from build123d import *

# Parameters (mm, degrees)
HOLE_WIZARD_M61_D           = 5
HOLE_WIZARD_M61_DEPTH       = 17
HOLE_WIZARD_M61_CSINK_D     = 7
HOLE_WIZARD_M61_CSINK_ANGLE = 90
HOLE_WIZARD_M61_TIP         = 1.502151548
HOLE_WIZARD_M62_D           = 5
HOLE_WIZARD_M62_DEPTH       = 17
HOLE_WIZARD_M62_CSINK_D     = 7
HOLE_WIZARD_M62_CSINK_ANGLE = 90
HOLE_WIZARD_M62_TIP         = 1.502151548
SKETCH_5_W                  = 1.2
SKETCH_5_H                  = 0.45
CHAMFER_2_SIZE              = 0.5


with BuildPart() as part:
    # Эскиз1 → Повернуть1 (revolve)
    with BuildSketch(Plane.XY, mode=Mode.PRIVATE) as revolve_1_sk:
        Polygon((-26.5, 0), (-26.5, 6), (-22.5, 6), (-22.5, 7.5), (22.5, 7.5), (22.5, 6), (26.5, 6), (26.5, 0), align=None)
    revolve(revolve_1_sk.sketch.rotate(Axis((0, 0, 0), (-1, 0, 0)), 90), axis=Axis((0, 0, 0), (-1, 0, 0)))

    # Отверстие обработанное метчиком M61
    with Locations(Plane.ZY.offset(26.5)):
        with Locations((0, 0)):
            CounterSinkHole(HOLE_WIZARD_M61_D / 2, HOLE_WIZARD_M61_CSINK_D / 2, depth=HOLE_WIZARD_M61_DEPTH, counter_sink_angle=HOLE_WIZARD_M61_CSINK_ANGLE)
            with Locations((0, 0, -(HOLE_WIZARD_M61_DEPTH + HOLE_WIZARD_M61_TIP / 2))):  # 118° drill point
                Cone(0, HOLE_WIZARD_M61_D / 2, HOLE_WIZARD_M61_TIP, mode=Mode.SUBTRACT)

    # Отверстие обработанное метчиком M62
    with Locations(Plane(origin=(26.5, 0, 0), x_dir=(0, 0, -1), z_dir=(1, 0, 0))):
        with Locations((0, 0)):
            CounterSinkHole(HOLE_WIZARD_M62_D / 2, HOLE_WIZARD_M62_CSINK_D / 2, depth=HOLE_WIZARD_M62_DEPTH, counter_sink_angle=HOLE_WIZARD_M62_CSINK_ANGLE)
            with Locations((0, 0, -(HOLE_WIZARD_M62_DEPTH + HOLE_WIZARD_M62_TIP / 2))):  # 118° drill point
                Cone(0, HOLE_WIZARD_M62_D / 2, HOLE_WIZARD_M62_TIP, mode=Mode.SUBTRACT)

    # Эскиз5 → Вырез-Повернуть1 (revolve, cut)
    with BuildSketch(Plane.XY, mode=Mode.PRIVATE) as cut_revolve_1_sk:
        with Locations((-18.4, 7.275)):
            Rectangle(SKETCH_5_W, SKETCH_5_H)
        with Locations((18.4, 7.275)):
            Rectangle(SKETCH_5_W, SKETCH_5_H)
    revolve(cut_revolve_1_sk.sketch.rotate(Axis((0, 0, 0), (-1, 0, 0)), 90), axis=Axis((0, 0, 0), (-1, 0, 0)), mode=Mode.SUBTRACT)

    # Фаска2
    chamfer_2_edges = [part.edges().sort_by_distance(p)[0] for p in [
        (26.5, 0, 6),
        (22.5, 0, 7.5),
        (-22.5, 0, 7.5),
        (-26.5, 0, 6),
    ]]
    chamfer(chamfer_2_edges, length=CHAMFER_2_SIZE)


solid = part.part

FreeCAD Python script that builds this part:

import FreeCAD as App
import Part
import Sketcher
from FreeCAD import Vector
Q = App.Units.Quantity


def edges_at(feature, points):
    """Names of the edges that pass closest to the given points."""
    edges = feature.Shape.Edges
    near = lambda p: min(range(len(edges)), key=lambda i: edges[i].distToShape(Part.Vertex(*p))[0])
    return sorted({f"Edge{near(p) + 1}" for p in points})


def add_polygon(sketch, points):
    """Adds a closed chain of lines whose ends are joined by coincident constraints."""
    first, n = sketch.GeometryCount, len(points)
    for a, b in zip(points, points[1:] + points[:1]):
        sketch.addGeometry(Part.LineSegment(App.Vector(*a, 0), App.Vector(*b, 0)), False)
    for i in range(n):
        sketch.addConstraint(Sketcher.Constraint("Coincident", first + i, 2, first + (i + 1) % n, 1))

doc = App.newDocument("Part")
body = doc.addObject("PartDesign::Body", "Body")

# Sketch on XY plane
sketch1 = body.newObject("Sketcher::SketchObject", "Sketch")
sketch1.AttachmentSupport = (doc.getObject("XY_Plane"), [""])
sketch1.MapMode = "FlatFace"
add_polygon(sketch1, [(-26.5, 6), (-26.5, 0), (26.5, 0), (26.5, 6), (22.5, 6), (22.5, 7.5), (-22.5, 7.5), (-22.5, 6)])  # lines 0-7
sketch1.addConstraint([
    Sketcher.Constraint("Vertical", 0),
    Sketcher.Constraint("Horizontal", 1),
    Sketcher.Constraint("Vertical", 2),
    Sketcher.Constraint("Horizontal", 3),
    Sketcher.Constraint("Vertical", 4),
    Sketcher.Constraint("Horizontal", 5),
    Sketcher.Constraint("Vertical", 6),
    Sketcher.Constraint("Horizontal", 7),
    Sketcher.Constraint("Symmetric", 0, 2, 1, 2, -1, 1),
    Sketcher.Constraint("Symmetric", 3, 2, 6, 2, -2),
    Sketcher.Constraint("DistanceX", 1, 1, 1, 2, Q("53 mm")),
    Sketcher.Constraint("DistanceX", 3, 2, 3, 1, Q("4 mm")),
    Sketcher.Constraint("DistanceY", 0, 2, 0, 1, Q("6 mm")),
    Sketcher.Constraint("DistanceY", 4, 1, 4, 2, Q("1.5 mm")),
])
revolution = body.newObject("PartDesign::Revolution", "Revolution")
revolution.Profile = sketch1
revolution.ReferenceAxis = (sketch1, ["H_Axis"])
revolution.Angle = 360

# Sketch on YZ plane
sketch2 = body.newObject("Sketcher::SketchObject", "Sketch001")
sketch2.AttachmentSupport = (doc.getObject("YZ_Plane"), [""])
sketch2.MapMode = "FlatFace"
sketch2.AttachmentOffset = App.Placement(Vector(0, 0, -26.5), App.Rotation())
sketch2.addGeometry(Part.Circle(Vector(0, 0, 0), Vector(0, 0, 1), 2.5), False)
sketch2.addConstraint([
    Sketcher.Constraint("Coincident", 0, 3, -1, 1),
    Sketcher.Constraint("Diameter", 0, Q("5 mm")),
])
doc.recompute()
hole = body.newObject("PartDesign::Hole", "Hole")
hole.Profile = sketch2
hole.ThreadType = "None"
hole.Diameter = 5
hole.DepthType = "Dimension"
hole.Depth = 17
hole.DrillPoint = "Angled"
hole.DrillPointAngle = 118
hole.HoleCutType = "Countersink"
hole.HoleCutDiameter = 7
hole.HoleCutCountersinkAngle = 90
hole.Reversed = True

# Sketch on YZ plane
sketch3 = body.newObject("Sketcher::SketchObject", "Sketch002")
sketch3.AttachmentSupport = (doc.getObject("YZ_Plane"), [""])
sketch3.MapMode = "FlatFace"
sketch3.AttachmentOffset = App.Placement(Vector(0, 0, 26.5), App.Rotation())
sketch3.addGeometry(Part.Circle(Vector(0, 0, 0), Vector(0, 0, 1), 2.5), False)
sketch3.addConstraint([
    Sketcher.Constraint("Coincident", 0, 3, -1, 1),
    Sketcher.Constraint("Diameter", 0, Q("5 mm")),
])
doc.recompute()
hole2 = body.newObject("PartDesign::Hole", "Hole001")
hole2.Profile = sketch3
hole2.ThreadType = "None"
hole2.Diameter = 5
hole2.DepthType = "Dimension"
hole2.Depth = 17
hole2.DrillPoint = "Angled"
hole2.DrillPointAngle = 118
hole2.HoleCutType = "Countersink"
hole2.HoleCutDiameter = 7
hole2.HoleCutCountersinkAngle = 90

# Sketch on XY plane
sketch4 = body.newObject("Sketcher::SketchObject", "Sketch003")
sketch4.AttachmentSupport = (doc.getObject("XY_Plane"), [""])
sketch4.MapMode = "FlatFace"
add_polygon(sketch4, [(-19, 7.5), (-19, 7.05), (-17.8, 7.05), (-17.8, 7.5)])  # lines 0-3
add_polygon(sketch4, [(17.8, 7.5), (17.8, 7.05), (19, 7.05), (19, 7.5)])  # lines 4-7
sketch4.addConstraint([
    Sketcher.Constraint("Vertical", 0),
    Sketcher.Constraint("Horizontal", 1),
    Sketcher.Constraint("Vertical", 2),
    Sketcher.Constraint("Horizontal", 3),
    Sketcher.Constraint("Vertical", 4),
    Sketcher.Constraint("Horizontal", 5),
    Sketcher.Constraint("Vertical", 6),
    Sketcher.Constraint("Horizontal", 7),
    Sketcher.Constraint("Symmetric", 1, 2, 4, 2, -2),
    Sketcher.Constraint("Symmetric", 3, 2, 6, 2, -2),
    Sketcher.Constraint("DistanceX", 1, 1, 1, 2, Q("1.2 mm")),
    Sketcher.Constraint("DistanceX", 0, 2, -1, 1, Q("19 mm")),
    Sketcher.Constraint("DistanceY", 0, 2, 0, 1, Q("0.45 mm")),
    Sketcher.Constraint("DistanceY", -1, 1, 2, 2, Q("7.5 mm")),
])
groove = body.newObject("PartDesign::Groove", "Groove")
groove.Profile = sketch4
groove.ReferenceAxis = (sketch4, ["H_Axis"])
groove.Angle = 360
doc.recompute()

chamfer = body.newObject("PartDesign::Chamfer", "Chamfer")
chamfer.Base = (groove, edges_at(groove, [
    (26.5, 0, 6),
    (22.5, 0, 7.5),
    (-22.5, 0, 7.5),
    (-26.5, 0, 6),
]))
chamfer.Size = 0.5

doc.recompute()
